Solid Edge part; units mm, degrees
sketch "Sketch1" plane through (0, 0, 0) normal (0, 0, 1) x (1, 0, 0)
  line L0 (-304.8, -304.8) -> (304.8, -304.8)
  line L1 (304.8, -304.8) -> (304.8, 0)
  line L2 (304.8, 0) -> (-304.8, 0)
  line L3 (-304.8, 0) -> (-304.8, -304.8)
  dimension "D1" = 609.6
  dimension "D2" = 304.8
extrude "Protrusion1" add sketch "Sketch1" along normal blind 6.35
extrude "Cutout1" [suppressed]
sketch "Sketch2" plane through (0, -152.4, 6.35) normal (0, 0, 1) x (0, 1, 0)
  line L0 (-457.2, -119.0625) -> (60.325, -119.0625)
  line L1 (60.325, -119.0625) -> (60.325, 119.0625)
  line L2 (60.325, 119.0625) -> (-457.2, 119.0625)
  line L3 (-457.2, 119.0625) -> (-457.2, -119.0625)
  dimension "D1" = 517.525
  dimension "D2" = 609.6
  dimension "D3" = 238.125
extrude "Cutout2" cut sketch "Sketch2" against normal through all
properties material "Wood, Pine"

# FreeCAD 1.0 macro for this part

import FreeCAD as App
import Part
import Sketcher

V = App.Vector
Q = App.Units.Quantity


def add_polygon(sketch, points):
    """Adds a closed chain of lines whose ends are joined by coincident constraints."""
    first, n = sketch.GeometryCount, len(points)
    for a, b in zip(points, points[1:] + points[:1]):
        sketch.addGeometry(Part.LineSegment(App.Vector(*a, 0), App.Vector(*b, 0)), False)
    for i in range(n):
        sketch.addConstraint(Sketcher.Constraint("Coincident", first + i, 2, first + (i + 1) % n, 1))

doc = App.newDocument("Part")
body = doc.addObject("PartDesign::Body", "Body")

sketch1 = body.newObject("Sketcher::SketchObject", "Sketch")
sketch1.AttachmentSupport = (doc.getObject("XY_Plane"), [""])
sketch1.MapMode = "FlatFace"
add_polygon(sketch1, [(-305, 0), (-305, -305), (305, -305), (305, 0)])
sketch1.addConstraint([
    Sketcher.Constraint("Vertical", 0),
    Sketcher.Constraint("Horizontal", 1),
    Sketcher.Constraint("Vertical", 2),
    Sketcher.Constraint("Horizontal", 3),
    Sketcher.Constraint("Symmetric", 2, 2, 3, 2, -1, 1),
    Sketcher.Constraint("DistanceY", 0, 2, 0, 1, Q("12 in")),
    Sketcher.Constraint("DistanceX", 0, 2, -1, 1, Q("12 in")),
])
pad1 = body.newObject("PartDesign::Pad", "Pad")
pad1.Profile = sketch1
pad1.Length = Q("0.25 in")

sketch2 = body.newObject("Sketcher::SketchObject", "Sketch001")
sketch2.AttachmentSupport = (doc.getObject("XY_Plane"), [""])
sketch2.MapMode = "FlatFace"
sketch2.AttachmentOffset = App.Placement(V(0, 0, 0.25 * 25.4), App.Rotation())
add_polygon(sketch2, [(-119, -610), (119, -610), (119, -92), (-119, -92)])
sketch2.addConstraint([
    Sketcher.Constraint("Horizontal", 0),
    Sketcher.Constraint("Vertical", 1),
    Sketcher.Constraint("Horizontal", 2),
    Sketcher.Constraint("Vertical", 3),
    Sketcher.Constraint("DistanceY", 0, 2, -1, 1, Q("24 in")),
    Sketcher.Constraint("DistanceX", 0, 1, 0, 2, Q("9.375 in")),
    Sketcher.Constraint("DistanceY", 1, 1, 1, 2, Q("20.375 in")),
    Sketcher.Constraint("DistanceX", -1, 1, 0, 2, Q("4.6875 in")),
])
pocket1 = body.newObject("PartDesign::Pocket", "Pocket")
pocket1.Profile = sketch2
pocket1.Type = "ThroughAll"

doc.recompute()
